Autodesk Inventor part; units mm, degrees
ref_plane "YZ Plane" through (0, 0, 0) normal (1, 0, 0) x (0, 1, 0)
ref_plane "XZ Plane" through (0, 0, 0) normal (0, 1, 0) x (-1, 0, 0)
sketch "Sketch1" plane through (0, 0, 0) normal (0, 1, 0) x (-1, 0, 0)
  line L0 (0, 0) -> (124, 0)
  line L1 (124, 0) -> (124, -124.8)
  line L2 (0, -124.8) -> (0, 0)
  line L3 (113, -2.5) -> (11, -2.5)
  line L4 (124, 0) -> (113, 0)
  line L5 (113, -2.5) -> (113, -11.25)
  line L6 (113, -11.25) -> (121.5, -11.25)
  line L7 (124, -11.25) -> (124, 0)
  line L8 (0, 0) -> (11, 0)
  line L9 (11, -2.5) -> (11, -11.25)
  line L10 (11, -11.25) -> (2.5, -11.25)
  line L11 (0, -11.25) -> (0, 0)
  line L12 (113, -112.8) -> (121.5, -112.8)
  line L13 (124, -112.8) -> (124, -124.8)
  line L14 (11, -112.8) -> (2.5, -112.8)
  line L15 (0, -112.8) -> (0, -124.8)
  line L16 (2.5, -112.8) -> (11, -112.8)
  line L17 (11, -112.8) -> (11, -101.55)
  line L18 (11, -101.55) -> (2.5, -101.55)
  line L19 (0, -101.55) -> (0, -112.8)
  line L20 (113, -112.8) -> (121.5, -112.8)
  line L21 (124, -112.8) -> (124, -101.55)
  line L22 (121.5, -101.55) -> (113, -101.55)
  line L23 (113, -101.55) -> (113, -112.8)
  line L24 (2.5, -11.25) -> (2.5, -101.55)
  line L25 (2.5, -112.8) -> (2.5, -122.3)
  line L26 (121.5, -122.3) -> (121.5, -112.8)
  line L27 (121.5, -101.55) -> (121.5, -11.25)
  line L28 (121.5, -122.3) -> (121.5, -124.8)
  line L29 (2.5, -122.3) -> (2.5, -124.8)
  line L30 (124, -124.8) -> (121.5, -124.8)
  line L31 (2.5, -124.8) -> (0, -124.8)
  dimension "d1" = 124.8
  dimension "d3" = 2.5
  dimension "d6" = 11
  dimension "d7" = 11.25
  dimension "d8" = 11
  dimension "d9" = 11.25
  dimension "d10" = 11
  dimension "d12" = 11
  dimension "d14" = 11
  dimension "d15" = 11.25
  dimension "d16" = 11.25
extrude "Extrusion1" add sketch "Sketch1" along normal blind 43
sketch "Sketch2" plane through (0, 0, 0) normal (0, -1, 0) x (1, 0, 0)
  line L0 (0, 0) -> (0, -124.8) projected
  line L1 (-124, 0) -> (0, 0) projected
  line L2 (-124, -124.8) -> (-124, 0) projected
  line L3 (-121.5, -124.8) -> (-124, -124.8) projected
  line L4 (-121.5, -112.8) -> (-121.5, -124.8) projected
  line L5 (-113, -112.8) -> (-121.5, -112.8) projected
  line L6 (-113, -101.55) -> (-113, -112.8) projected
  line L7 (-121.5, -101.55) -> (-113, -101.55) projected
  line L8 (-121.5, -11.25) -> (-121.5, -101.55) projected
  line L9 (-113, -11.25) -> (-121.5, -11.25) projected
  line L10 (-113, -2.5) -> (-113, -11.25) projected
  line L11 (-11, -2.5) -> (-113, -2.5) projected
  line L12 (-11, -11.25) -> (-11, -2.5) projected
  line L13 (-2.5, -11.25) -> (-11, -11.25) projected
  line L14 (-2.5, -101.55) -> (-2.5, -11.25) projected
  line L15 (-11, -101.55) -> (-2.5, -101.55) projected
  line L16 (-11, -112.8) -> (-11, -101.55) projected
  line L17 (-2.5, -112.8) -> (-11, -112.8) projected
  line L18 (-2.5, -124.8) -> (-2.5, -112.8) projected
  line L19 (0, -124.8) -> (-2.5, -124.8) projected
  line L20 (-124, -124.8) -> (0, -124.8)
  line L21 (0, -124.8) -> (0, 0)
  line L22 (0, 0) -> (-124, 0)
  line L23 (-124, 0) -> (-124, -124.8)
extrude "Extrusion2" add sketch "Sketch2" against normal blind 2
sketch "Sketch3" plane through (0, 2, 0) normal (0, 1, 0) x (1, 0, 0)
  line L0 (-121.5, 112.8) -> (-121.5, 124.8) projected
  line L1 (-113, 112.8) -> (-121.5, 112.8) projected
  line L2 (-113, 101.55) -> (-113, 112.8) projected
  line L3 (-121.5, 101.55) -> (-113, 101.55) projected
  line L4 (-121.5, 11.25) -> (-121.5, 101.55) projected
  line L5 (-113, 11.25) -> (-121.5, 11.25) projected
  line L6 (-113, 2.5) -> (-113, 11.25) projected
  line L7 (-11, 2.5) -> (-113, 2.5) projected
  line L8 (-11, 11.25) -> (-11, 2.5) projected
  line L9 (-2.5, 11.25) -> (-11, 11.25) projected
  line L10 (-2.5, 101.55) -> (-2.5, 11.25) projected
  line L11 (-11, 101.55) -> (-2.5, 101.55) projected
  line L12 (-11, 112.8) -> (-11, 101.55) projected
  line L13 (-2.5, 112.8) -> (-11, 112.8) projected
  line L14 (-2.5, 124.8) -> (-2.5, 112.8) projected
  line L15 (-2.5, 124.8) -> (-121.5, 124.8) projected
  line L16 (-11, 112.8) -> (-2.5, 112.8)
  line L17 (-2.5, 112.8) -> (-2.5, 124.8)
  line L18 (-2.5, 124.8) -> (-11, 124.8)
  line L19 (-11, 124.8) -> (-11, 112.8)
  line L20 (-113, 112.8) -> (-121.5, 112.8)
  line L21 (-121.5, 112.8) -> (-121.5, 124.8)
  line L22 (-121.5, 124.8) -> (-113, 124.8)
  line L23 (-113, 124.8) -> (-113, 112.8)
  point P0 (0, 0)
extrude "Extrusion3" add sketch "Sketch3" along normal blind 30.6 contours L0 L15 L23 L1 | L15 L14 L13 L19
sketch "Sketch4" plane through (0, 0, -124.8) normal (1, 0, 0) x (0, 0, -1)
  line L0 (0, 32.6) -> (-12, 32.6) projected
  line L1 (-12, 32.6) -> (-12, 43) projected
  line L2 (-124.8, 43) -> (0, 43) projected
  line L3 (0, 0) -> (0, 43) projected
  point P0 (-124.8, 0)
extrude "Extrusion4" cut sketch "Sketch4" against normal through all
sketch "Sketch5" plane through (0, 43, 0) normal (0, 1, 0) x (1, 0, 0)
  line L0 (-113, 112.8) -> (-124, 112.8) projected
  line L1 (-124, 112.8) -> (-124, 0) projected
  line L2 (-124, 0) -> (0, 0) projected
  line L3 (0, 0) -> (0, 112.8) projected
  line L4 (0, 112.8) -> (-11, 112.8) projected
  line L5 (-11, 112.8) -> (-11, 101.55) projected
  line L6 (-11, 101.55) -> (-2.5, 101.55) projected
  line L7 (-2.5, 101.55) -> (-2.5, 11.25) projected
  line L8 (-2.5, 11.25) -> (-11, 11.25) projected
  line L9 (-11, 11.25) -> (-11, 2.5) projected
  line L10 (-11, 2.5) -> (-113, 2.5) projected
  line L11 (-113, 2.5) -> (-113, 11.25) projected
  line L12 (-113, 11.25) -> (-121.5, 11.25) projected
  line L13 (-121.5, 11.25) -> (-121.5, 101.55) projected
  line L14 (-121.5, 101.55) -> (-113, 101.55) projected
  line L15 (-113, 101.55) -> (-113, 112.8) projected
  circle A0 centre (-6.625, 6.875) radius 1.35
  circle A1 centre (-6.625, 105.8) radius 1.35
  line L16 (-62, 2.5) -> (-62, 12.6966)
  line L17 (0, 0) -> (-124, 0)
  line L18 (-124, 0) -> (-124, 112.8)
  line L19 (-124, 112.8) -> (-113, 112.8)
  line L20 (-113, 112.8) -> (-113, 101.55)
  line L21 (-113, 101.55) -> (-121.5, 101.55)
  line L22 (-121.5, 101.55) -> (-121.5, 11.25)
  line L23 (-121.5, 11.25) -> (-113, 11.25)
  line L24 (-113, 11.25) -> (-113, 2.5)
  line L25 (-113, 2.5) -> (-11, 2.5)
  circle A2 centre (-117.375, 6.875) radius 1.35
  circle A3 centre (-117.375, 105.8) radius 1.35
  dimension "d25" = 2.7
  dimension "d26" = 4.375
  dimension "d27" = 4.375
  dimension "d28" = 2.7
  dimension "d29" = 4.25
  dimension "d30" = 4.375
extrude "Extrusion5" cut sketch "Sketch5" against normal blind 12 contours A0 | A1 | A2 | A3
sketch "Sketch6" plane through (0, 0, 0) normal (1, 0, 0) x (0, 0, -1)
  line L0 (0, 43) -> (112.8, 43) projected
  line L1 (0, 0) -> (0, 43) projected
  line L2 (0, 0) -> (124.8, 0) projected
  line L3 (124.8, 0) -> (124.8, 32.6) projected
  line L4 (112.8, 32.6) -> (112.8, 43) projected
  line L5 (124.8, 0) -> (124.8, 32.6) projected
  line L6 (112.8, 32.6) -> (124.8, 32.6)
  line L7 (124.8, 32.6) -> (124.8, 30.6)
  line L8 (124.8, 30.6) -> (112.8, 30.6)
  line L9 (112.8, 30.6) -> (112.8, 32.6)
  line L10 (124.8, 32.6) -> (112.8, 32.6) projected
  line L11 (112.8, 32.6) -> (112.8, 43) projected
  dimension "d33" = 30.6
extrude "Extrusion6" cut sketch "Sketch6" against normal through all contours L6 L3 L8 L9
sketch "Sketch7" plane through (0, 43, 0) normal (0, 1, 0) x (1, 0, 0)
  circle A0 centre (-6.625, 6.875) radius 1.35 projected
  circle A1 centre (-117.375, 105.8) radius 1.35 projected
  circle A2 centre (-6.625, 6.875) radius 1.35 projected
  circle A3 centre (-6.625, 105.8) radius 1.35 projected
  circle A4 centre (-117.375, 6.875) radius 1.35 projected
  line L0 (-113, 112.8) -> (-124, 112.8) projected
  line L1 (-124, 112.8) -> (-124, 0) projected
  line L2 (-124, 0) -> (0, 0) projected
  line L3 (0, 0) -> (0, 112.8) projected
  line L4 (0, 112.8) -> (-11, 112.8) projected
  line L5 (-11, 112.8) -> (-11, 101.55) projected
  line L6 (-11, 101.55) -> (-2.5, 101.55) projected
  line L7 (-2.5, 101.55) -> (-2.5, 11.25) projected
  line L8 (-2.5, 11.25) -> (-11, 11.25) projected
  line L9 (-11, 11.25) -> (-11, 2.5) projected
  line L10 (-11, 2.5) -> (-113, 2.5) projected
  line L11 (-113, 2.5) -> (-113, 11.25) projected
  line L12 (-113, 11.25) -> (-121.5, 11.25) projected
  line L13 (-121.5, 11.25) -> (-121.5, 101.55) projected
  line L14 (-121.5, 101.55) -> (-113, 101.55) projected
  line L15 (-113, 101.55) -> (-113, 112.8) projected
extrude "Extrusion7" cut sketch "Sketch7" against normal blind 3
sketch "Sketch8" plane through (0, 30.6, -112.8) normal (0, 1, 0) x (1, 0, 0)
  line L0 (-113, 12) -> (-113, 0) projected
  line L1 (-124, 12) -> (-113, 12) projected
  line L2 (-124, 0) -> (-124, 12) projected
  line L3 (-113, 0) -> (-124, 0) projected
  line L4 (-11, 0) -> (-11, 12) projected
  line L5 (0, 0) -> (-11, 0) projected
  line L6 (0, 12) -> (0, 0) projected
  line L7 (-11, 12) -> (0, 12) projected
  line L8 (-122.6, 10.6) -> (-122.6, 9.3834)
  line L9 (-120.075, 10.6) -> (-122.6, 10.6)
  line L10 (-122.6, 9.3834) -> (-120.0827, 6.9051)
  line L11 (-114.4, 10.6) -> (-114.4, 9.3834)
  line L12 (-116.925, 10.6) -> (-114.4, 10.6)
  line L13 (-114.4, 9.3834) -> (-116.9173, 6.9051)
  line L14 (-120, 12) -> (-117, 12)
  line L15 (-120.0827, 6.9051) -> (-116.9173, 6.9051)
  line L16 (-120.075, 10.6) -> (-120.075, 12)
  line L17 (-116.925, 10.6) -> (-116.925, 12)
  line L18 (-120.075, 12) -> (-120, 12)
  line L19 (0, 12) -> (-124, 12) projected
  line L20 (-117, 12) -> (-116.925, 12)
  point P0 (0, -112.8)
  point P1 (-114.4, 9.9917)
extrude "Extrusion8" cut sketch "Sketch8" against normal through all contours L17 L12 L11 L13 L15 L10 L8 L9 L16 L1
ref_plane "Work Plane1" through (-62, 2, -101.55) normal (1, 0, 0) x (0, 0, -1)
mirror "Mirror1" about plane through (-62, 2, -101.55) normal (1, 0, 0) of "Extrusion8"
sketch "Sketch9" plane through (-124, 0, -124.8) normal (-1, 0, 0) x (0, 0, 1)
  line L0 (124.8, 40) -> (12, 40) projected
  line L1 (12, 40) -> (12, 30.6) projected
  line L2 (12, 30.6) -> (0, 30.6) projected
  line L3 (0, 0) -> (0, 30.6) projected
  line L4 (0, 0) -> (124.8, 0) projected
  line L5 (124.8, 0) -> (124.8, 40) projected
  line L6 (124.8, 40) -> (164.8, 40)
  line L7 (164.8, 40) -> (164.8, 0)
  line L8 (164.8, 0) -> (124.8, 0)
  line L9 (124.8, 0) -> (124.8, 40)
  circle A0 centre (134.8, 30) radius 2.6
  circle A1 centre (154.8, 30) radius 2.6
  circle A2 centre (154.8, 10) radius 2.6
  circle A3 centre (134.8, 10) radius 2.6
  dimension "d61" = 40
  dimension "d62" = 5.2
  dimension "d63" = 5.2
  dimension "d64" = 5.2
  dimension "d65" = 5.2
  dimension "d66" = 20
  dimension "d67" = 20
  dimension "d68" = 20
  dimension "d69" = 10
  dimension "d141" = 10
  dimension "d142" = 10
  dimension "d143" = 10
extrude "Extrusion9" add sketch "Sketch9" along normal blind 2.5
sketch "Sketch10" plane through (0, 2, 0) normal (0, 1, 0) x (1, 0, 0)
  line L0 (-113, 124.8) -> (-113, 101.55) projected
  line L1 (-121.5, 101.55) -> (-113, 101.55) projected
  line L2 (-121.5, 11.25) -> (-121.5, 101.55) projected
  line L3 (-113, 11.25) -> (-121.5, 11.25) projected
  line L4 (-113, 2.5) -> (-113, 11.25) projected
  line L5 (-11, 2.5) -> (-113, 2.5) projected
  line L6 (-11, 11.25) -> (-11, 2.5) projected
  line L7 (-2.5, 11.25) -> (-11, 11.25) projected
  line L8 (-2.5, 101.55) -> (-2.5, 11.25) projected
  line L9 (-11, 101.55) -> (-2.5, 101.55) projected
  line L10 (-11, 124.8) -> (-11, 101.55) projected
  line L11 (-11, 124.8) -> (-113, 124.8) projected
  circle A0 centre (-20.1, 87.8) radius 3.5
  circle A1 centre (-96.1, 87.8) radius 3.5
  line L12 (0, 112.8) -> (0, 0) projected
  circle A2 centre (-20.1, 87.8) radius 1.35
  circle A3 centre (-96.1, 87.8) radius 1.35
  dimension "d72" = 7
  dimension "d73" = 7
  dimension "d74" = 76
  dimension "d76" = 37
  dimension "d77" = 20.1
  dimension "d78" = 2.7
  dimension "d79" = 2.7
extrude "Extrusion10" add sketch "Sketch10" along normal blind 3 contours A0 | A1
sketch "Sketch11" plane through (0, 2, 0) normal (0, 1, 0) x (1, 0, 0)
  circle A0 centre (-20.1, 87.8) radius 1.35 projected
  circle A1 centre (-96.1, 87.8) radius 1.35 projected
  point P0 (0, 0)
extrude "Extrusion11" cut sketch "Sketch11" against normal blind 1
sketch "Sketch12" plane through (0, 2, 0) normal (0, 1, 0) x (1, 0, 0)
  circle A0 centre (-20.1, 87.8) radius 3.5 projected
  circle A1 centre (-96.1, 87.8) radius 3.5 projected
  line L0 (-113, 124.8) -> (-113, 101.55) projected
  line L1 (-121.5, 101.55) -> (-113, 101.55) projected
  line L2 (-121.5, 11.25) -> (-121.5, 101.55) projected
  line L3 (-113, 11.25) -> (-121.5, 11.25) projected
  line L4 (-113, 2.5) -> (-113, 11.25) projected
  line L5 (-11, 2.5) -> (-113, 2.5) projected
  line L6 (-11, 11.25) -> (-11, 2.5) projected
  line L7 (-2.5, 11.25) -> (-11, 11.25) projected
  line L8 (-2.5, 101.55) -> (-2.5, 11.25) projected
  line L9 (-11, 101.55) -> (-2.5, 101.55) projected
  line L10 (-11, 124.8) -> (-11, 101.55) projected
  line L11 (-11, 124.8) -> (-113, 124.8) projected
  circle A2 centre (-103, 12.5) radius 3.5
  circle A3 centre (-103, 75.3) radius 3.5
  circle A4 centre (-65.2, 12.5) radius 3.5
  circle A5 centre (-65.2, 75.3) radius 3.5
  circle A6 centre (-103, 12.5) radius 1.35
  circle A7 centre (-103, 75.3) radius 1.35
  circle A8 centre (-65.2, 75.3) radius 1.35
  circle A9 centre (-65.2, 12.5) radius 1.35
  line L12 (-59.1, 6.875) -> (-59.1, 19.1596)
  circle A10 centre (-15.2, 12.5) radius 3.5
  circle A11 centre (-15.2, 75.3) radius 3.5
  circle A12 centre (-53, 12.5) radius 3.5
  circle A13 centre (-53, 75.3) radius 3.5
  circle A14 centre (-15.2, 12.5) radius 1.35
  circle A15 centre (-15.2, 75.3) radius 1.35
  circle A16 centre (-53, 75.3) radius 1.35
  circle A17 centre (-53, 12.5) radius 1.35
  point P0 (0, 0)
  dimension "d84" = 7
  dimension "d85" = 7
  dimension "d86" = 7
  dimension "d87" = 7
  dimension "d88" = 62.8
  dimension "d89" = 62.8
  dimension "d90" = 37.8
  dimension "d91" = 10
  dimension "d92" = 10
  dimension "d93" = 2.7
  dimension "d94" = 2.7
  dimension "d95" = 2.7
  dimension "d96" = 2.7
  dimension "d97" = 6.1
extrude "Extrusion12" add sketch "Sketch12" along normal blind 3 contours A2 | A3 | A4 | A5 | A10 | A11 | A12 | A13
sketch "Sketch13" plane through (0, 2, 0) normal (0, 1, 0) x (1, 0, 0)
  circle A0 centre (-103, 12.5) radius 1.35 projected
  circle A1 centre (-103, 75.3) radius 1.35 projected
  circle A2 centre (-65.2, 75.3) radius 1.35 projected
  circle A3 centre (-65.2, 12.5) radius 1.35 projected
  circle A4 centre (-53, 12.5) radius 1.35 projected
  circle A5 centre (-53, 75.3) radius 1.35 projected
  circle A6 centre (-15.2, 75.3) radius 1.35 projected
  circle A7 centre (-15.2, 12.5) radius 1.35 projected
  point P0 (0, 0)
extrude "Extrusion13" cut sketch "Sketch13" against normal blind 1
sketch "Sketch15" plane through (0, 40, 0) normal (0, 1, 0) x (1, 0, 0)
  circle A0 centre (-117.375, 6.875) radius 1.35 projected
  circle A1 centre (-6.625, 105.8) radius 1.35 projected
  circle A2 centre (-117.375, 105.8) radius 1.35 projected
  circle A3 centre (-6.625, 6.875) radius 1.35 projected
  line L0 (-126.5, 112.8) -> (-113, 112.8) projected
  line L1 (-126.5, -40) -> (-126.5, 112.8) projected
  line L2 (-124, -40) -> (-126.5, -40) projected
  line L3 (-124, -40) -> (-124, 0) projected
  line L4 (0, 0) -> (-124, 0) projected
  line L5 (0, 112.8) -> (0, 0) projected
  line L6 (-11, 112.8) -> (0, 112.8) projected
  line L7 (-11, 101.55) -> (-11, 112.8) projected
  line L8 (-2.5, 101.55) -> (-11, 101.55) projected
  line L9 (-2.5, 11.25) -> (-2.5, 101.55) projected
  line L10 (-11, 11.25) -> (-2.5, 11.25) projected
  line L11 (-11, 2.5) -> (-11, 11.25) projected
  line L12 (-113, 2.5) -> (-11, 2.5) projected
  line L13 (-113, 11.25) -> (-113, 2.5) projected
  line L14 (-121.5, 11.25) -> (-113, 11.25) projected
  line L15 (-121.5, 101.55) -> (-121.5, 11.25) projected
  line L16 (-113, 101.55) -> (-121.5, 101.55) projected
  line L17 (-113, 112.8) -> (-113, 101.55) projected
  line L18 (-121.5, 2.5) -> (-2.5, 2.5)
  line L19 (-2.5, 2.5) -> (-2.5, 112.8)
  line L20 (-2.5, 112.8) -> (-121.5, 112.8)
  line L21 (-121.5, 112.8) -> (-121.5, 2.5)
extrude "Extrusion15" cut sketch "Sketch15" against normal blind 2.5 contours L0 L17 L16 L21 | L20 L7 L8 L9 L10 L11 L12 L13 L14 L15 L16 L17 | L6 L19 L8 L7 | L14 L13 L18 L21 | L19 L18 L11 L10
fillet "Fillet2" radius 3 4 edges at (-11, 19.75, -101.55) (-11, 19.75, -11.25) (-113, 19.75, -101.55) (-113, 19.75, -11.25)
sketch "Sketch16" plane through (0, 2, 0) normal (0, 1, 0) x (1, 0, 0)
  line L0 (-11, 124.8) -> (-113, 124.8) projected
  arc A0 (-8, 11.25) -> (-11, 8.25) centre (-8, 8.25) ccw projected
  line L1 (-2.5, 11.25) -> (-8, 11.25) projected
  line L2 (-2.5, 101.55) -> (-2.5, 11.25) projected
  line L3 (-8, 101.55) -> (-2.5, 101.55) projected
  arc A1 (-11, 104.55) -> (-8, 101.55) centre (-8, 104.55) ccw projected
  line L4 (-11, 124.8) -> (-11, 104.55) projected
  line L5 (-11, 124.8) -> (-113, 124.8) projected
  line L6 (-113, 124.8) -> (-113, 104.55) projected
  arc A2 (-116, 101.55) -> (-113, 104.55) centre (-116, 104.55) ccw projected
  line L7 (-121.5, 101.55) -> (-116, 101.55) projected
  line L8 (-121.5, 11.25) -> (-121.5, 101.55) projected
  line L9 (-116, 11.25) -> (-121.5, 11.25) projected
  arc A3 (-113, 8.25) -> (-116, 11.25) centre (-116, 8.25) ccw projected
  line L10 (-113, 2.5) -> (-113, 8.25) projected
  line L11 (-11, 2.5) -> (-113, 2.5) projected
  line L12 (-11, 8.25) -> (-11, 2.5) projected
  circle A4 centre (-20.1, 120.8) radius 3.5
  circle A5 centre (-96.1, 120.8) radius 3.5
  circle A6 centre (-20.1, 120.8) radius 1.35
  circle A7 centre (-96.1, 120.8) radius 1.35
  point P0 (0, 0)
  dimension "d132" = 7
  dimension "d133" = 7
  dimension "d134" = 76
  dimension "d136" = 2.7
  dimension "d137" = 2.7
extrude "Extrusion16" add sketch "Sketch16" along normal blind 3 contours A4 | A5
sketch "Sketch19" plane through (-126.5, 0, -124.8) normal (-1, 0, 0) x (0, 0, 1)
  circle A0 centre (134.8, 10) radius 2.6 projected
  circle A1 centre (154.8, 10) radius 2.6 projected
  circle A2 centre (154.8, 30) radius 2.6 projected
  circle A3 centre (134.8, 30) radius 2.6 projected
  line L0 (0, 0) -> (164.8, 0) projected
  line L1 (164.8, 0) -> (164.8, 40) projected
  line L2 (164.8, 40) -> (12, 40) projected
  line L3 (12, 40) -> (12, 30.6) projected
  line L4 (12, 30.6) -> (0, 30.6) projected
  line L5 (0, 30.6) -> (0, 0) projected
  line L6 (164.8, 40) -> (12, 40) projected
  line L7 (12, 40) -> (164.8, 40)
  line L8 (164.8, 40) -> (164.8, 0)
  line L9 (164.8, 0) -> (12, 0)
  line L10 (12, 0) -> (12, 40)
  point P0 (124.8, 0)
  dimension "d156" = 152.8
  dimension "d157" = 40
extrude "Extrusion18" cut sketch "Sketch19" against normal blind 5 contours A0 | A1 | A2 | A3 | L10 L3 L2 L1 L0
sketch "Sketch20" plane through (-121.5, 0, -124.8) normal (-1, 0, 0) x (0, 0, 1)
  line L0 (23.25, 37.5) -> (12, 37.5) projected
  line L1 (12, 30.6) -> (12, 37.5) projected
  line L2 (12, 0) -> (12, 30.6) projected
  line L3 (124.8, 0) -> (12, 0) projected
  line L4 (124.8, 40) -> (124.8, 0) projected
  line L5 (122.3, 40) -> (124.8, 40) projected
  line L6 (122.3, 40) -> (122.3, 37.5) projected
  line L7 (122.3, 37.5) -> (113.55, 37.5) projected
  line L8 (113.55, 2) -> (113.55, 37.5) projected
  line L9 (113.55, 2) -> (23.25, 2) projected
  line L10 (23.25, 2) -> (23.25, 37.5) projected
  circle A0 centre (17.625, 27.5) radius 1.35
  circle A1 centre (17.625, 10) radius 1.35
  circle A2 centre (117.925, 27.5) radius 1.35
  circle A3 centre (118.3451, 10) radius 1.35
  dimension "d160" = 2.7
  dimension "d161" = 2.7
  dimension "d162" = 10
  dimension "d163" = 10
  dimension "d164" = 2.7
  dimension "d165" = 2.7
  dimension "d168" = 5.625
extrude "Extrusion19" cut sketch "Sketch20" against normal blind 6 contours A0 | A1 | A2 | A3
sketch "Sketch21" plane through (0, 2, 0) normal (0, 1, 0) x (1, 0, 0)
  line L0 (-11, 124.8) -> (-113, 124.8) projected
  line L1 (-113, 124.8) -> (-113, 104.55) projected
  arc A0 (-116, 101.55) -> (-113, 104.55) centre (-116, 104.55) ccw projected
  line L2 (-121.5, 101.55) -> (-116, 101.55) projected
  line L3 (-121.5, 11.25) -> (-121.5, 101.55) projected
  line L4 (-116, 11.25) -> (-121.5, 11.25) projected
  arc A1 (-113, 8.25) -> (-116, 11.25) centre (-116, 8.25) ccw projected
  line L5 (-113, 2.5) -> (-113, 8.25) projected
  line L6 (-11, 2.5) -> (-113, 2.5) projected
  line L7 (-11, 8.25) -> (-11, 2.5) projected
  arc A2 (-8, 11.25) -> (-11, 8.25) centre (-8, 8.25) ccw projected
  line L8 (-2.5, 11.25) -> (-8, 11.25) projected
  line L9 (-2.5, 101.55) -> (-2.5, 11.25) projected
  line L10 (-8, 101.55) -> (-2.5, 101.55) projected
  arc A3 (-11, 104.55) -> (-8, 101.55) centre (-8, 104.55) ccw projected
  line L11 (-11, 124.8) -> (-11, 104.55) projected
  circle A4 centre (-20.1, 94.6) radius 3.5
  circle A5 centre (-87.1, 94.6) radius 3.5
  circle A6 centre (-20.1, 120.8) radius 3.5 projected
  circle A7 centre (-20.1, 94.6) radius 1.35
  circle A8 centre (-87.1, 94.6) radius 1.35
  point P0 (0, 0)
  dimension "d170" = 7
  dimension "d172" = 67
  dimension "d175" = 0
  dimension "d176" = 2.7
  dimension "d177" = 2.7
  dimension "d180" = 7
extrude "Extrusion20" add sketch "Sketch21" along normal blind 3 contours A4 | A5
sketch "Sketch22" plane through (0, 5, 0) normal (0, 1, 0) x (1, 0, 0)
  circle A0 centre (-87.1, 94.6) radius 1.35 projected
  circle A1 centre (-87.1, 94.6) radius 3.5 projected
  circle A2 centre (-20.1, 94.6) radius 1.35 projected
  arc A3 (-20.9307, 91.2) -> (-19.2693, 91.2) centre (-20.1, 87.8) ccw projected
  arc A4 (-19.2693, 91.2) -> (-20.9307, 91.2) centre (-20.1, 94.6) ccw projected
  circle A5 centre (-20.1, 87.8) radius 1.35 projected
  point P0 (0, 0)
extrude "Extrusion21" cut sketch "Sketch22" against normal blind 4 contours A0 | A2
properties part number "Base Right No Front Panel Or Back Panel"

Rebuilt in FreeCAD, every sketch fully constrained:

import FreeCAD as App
import Part
import Sketcher

V = App.Vector
Q = App.Units.Quantity


def edges_at(feature, points):
    """Names of the edges that pass closest to the given points."""
    edges = feature.Shape.Edges
    near = lambda p: min(range(len(edges)), key=lambda i: edges[i].distToShape(Part.Vertex(*p))[0])
    return sorted({f"Edge{near(p) + 1}" for p in points})


def add_polygon(sketch, points):
    """Adds a closed chain of lines whose ends are joined by coincident constraints."""
    first, n = sketch.GeometryCount, len(points)
    for a, b in zip(points, points[1:] + points[:1]):
        sketch.addGeometry(Part.LineSegment(App.Vector(*a, 0), App.Vector(*b, 0)), False)
    for i in range(n):
        sketch.addConstraint(Sketcher.Constraint("Coincident", first + i, 2, first + (i + 1) % n, 1))

doc = App.newDocument("Part")
body = doc.addObject("PartDesign::Body", "Body")

# Sketch on XZ plane
sketch1 = doc.addObject("Sketcher::SketchObject", "Sketch")
body.addObject(sketch1)
sketch1.AttachmentSupport = (doc.XZ_Plane, [""])
sketch1.MapMode = "FlatFace"
add_polygon(sketch1, [(-124, 0), (0, 0), (0, -124.8), (-2.5, -124.8), (-2.5, -112.8), (-11, -112.8), (-11, -101.5), (-2.5, -101.5), (-2.5, -11.2), (-11, -11.2), (-11, -2.5), (-113, -2.5), (-113, -11.2), (-121.5, -11.2), (-121.5, -101.5), (-113, -101.5), (-113, -112.8), (-121.5, -112.8), (-121.5, -124.8), (-124, -124.8)])  # lines 0-19
sketch1.addConstraint([
    Sketcher.Constraint("Horizontal", 0),
    Sketcher.Constraint("Vertical", 1),
    Sketcher.Constraint("Horizontal", 2),
    Sketcher.Constraint("Vertical", 3),
    Sketcher.Constraint("Horizontal", 4),
    Sketcher.Constraint("Vertical", 5),
    Sketcher.Constraint("Horizontal", 6),
    Sketcher.Constraint("Vertical", 7),
    Sketcher.Constraint("Horizontal", 8),
    Sketcher.Constraint("Vertical", 9),
    Sketcher.Constraint("Horizontal", 10),
    Sketcher.Constraint("Vertical", 11),
    Sketcher.Constraint("Horizontal", 12),
    Sketcher.Constraint("Vertical", 13),
    Sketcher.Constraint("Horizontal", 14),
    Sketcher.Constraint("Vertical", 15),
    Sketcher.Constraint("Horizontal", 16),
    Sketcher.Constraint("Vertical", 17),
    Sketcher.Constraint("Horizontal", 18),
    Sketcher.Constraint("Vertical", 19),
    Sketcher.Constraint("Coincident", 0, 2, -1, 1),
    Sketcher.Constraint("Horizontal", 8, 2, 11, 2),
    Sketcher.Constraint("Horizontal", 6, 2, 13, 2),
    Sketcher.Constraint("Horizontal", 4, 2, 15, 2),
    Sketcher.Constraint("Horizontal", 2, 2, 17, 2),
    Sketcher.Constraint("Vertical", 3, 2, 6, 2),
    Sketcher.Constraint("Vertical", 5, 2, 8, 2),
    Sketcher.Constraint("Vertical", 11, 2, 14, 2),
    Sketcher.Constraint("Vertical", 13, 2, 16, 2),
    Sketcher.Constraint("Equal", 8, 12),
    Sketcher.Constraint("Equal", 2, 18),
    Sketcher.Constraint("DistanceX", 2, 2, 2, 1, Q("2.5 mm")),
    Sketcher.Constraint("DistanceY", 1, 2, 1, 1, Q("124.8 mm")),
    Sketcher.Constraint("DistanceX", 4, 2, -1, 1, Q("11 mm")),
    Sketcher.Constraint("DistanceY", 5, 1, 5, 2, Q("11.25 mm")),
    Sketcher.Constraint("DistanceY", 9, 2, -1, 1, Q("2.5 mm")),
    Sketcher.Constraint("DistanceX", 0, 1, 0, 2, Q("124 mm")),
    Sketcher.Constraint("DistanceY", 3, 1, 3, 2, Q("12 mm")),
    Sketcher.Constraint("DistanceY", 7, 2, -1, 1, Q("11.25 mm")),
])
pad1 = doc.addObject("PartDesign::Pad", "Pad")
body.addObject(pad1)
pad1.Profile = sketch1
pad1.Length = 43
pad1.Reversed = True

# Sketch on XZ plane
sketch2 = doc.addObject("Sketcher::SketchObject", "Sketch001")
body.addObject(sketch2)
sketch2.AttachmentSupport = (doc.XZ_Plane, [""])
sketch2.MapMode = "FlatFace"
add_polygon(sketch2, [(0, -125), (0, 0), (-124, 0), (-124, -125)])  # lines 0-3
sketch2.addConstraint([
    Sketcher.Constraint("Vertical", 0),
    Sketcher.Constraint("Horizontal", 1),
    Sketcher.Constraint("Vertical", 2),
    Sketcher.Constraint("Horizontal", 3),
    Sketcher.Constraint("Coincident", 0, 2, -1, 1),
    Sketcher.Constraint("DistanceX", 1, 2, 1, 1, Q("124 mm")),
    Sketcher.Constraint("DistanceY", 0, 1, 0, 2, Q("124.8 mm")),
])
pad2 = doc.addObject("PartDesign::Pad", "Pad001")
body.addObject(pad2)
pad2.Profile = sketch2
pad2.Length = 2
pad2.Reversed = True

# Sketch on XZ plane
sketch3 = doc.addObject("Sketcher::SketchObject", "Sketch002")
body.addObject(sketch3)
sketch3.AttachmentSupport = (doc.XZ_Plane, [""])
sketch3.MapMode = "FlatFace"
sketch3.AttachmentOffset = App.Placement(V(0, 0, -2), App.Rotation())
add_polygon(sketch3, [(-122, -125), (-122, -113), (-113, -113), (-113, -125)])  # lines 0-3
add_polygon(sketch3, [(-2, -125), (-11, -125), (-11, -113), (-2, -113)])  # lines 4-7
sketch3.addConstraint([
    Sketcher.Constraint("Vertical", 0),
    Sketcher.Constraint("Horizontal", 1),
    Sketcher.Constraint("Vertical", 2),
    Sketcher.Constraint("Horizontal", 3),
    Sketcher.Constraint("Horizontal", 4),
    Sketcher.Constraint("Vertical", 5),
    Sketcher.Constraint("Horizontal", 6),
    Sketcher.Constraint("Vertical", 7),
    Sketcher.Constraint("Horizontal", 3, 2, 4, 2),
    Sketcher.Constraint("Horizontal", 1, 2, 5, 2),
    Sketcher.Constraint("Equal", 3, 4),
    Sketcher.Constraint("DistanceY", 0, 1, 0, 2, Q("12 mm")),
    Sketcher.Constraint("DistanceX", 1, 1, 1, 2, Q("8.5 mm")),
    Sketcher.Constraint("DistanceX", 1, 2, -1, 1, Q("113 mm")),
    Sketcher.Constraint("DistanceX", 4, 2, -1, 1, Q("11 mm")),
    Sketcher.Constraint("DistanceY", 0, 2, -1, 1, Q("112.8 mm")),
])
pad3 = doc.addObject("PartDesign::Pad", "Pad002")
body.addObject(pad3)
pad3.Profile = sketch3
pad3.Length = 30.6
pad3.Reversed = True

# Sketch on YZ plane
sketch4 = doc.addObject("Sketcher::SketchObject", "Sketch003")
body.addObject(sketch4)
sketch4.AttachmentSupport = (doc.YZ_Plane, [""])
sketch4.MapMode = "FlatFace"
add_polygon(sketch4, [(33, -113), (33, -125), (43, -125), (43, -113)])  # lines 0-3
sketch4.addConstraint([
    Sketcher.Constraint("Vertical", 0),
    Sketcher.Constraint("Horizontal", 1),
    Sketcher.Constraint("Vertical", 2),
    Sketcher.Constraint("Horizontal", 3),
    Sketcher.Constraint("DistanceY", 0, 2, 0, 1, Q("12 mm")),
    Sketcher.Constraint("DistanceX", 1, 1, 1, 2, Q("10.4 mm")),
    Sketcher.Constraint("DistanceX", -1, 1, 1, 2, Q("43 mm")),
    Sketcher.Constraint("DistanceY", 0, 2, -1, 1, Q("124.8 mm")),
])
pocket1 = doc.addObject("PartDesign::Pocket", "Pocket")
body.addObject(pocket1)
pocket1.Profile = sketch4
pocket1.Type = "ThroughAll"

# Sketch on XZ plane
sketch5 = doc.addObject("Sketcher::SketchObject", "Sketch004")
body.addObject(sketch5)
sketch5.AttachmentSupport = (doc.XZ_Plane, [""])
sketch5.MapMode = "FlatFace"
sketch5.AttachmentOffset = App.Placement(V(0, 0, -43), App.Rotation())
sketch5.addGeometry([
    Part.Circle(V(-6.6, -6.9, 0), V(0, 0, 1), 1.4),
    Part.Circle(V(-6.6, -105.8, 0), V(0, 0, 1), 1.4),
    Part.Circle(V(-117.4, -6.9, 0), V(0, 0, 1), 1.4),
    Part.Circle(V(-117.4, -105.8, 0), V(0, 0, 1), 1.4),
], False)
sketch5.addConstraint([
    Sketcher.Constraint("Equal", 0, 1),
    Sketcher.Constraint("Equal", 1, 2),
    Sketcher.Constraint("Equal", 2, 3),
    Sketcher.Constraint("Horizontal", 0, 3, 2, 3),
    Sketcher.Constraint("Horizontal", 1, 3, 3, 3),
    Sketcher.Constraint("Vertical", 0, 3, 1, 3),
    Sketcher.Constraint("Vertical", 2, 3, 3, 3),
    Sketcher.Constraint("Diameter", 0, Q("2.7 mm")),
    Sketcher.Constraint("DistanceY", 1, 3, -1, 1, Q("105.8 mm")),
    Sketcher.Constraint("DistanceX", 2, 3, 0, 3, Q("110.75 mm")),
    Sketcher.Constraint("DistanceX", 0, 3, -1, 1, Q("6.625 mm")),
    Sketcher.Constraint("DistanceY", 0, 3, -1, 1, Q("6.875 mm")),
])
pocket2 = doc.addObject("PartDesign::Pocket", "Pocket001")
body.addObject(pocket2)
pocket2.Profile = sketch5
pocket2.Length = 12
pocket2.Reversed = True

# Sketch on YZ plane
sketch6 = doc.addObject("Sketcher::SketchObject", "Sketch005")
body.addObject(sketch6)
sketch6.AttachmentSupport = (doc.YZ_Plane, [""])
sketch6.MapMode = "FlatFace"
add_polygon(sketch6, [(32.6, -124.8), (32.6, -112.8), (30.6, -112.8), (30.6, -124.8)])  # lines 0-3
sketch6.addConstraint([
    Sketcher.Constraint("Vertical", 0),
    Sketcher.Constraint("Horizontal", 1),
    Sketcher.Constraint("Vertical", 2),
    Sketcher.Constraint("Horizontal", 3),
    Sketcher.Constraint("DistanceX", -1, 1, 1, 2, Q("30.6 mm")),
    Sketcher.Constraint("DistanceX", 1, 2, 1, 1, Q("2 mm")),
    Sketcher.Constraint("DistanceY", 0, 1, 0, 2, Q("12 mm")),
    Sketcher.Constraint("DistanceY", 0, 2, -1, 1, Q("112.8 mm")),
])
pocket3 = doc.addObject("PartDesign::Pocket", "Pocket002")
body.addObject(pocket3)
pocket3.Profile = sketch6
pocket3.Type = "ThroughAll"

# Sketch on XZ plane
sketch7 = doc.addObject("Sketcher::SketchObject", "Sketch006")
body.addObject(sketch7)
sketch7.AttachmentSupport = (doc.XZ_Plane, [""])
sketch7.MapMode = "FlatFace"
sketch7.AttachmentOffset = App.Placement(V(0, 0, -43), App.Rotation())
add_polygon(sketch7, [(-113, -101.5), (-113, -112.8), (-124, -112.8), (-124, 0), (0, 0), (0, -112.8), (-11, -112.8), (-11, -101.5), (-2.5, -101.5), (-2.5, -11.2), (-11, -11.2), (-11, -2.5), (-113, -2.5), (-113, -11.2), (-121.5, -11.2), (-121.5, -101.5)])  # lines 0-15
sketch7.addGeometry(Part.Circle(V(-117.4, -6.9, 0), V(0, 0, 1), 1.4), False)  # 16
sketch7.addGeometry(Part.Circle(V(-6.6, -6.9, 0), V(0, 0, 1), 1.4), False)  # 17
sketch7.addGeometry(Part.Circle(V(-117.4, -105.8, 0), V(0, 0, 1), 1.4), False)  # 18
sketch7.addGeometry(Part.Circle(V(-6.6, -105.8, 0), V(0, 0, 1), 1.4), False)  # 19
sketch7.addConstraint([
    Sketcher.Constraint("Vertical", 0),
    Sketcher.Constraint("Horizontal", 1),
    Sketcher.Constraint("Vertical", 2),
    Sketcher.Constraint("Horizontal", 3),
    Sketcher.Constraint("Vertical", 4),
    Sketcher.Constraint("Horizontal", 5),
    Sketcher.Constraint("Vertical", 6),
    Sketcher.Constraint("Horizontal", 7),
    Sketcher.Constraint("Vertical", 8),
    Sketcher.Constraint("Horizontal", 9),
    Sketcher.Constraint("Vertical", 10),
    Sketcher.Constraint("Horizontal", 11),
    Sketcher.Constraint("Vertical", 12),
    Sketcher.Constraint("Horizontal", 13),
    Sketcher.Constraint("Vertical", 14),
    Sketcher.Constraint("Horizontal", 15),
    Sketcher.Constraint("Coincident", 3, 2, -1, 1),
    Sketcher.Constraint("Equal", 16, 17),
    Sketcher.Constraint("Equal", 17, 18),
    Sketcher.Constraint("Equal", 18, 19),
    Sketcher.Constraint("Horizontal", 16, 3, 17, 3),
    Sketcher.Constraint("Horizontal", 18, 3, 19, 3),
    Sketcher.Constraint("Horizontal", 1, 2, 4, 2),
    Sketcher.Constraint("Horizontal", 9, 2, 12, 2),
    Sketcher.Constraint("Horizontal", 7, 2, 14, 2),
    Sketcher.Constraint("Vertical", 16, 3, 18, 3),
    Sketcher.Constraint("Vertical", 17, 3, 19, 3),
    Sketcher.Constraint("Vertical", 6, 2, 9, 2),
    Sketcher.Constraint("Vertical", 0, 2, 11, 2),
    Sketcher.Constraint("Equal", 1, 5),
    Sketcher.Constraint("Equal", 9, 13),
    Sketcher.Constraint("Diameter", 16, Q("2.7 mm")),
    Sketcher.Constraint("DistanceX", 1, 2, 1, 1, Q("11 mm")),
    Sketcher.Constraint("DistanceX", 3, 1, 3, 2, Q("124 mm")),
    Sketcher.Constraint("DistanceX", 7, 1, 7, 2, Q("8.5 mm")),
    Sketcher.Constraint("DistanceY", 2, 1, 2, 2, Q("112.8 mm")),
    Sketcher.Constraint("DistanceY", 8, 1, 8, 2, Q("90.3 mm")),
    Sketcher.Constraint("DistanceY", 0, 2, 18, 3, Q("7 mm")),
    Sketcher.Constraint("DistanceY", 0, 2, 0, 1, Q("11.25 mm")),
    Sketcher.Constraint("DistanceY", 10, 1, 10, 2, Q("8.75 mm")),
    Sketcher.Constraint("DistanceX", 16, 3, 17, 3, Q("110.75 mm")),
    Sketcher.Constraint("DistanceX", 16, 3, -1, 1, Q("117.375 mm")),
    Sketcher.Constraint("DistanceY", 16, 3, -1, 1, Q("6.875 mm")),
])
pocket4 = doc.addObject("PartDesign::Pocket", "Pocket003")
body.addObject(pocket4)
pocket4.Profile = sketch7
pocket4.Length = 3
pocket4.Reversed = True

# Sketch on XZ plane
sketch8 = doc.addObject("Sketcher::SketchObject", "Sketch007")
body.addObject(sketch8)
sketch8.AttachmentSupport = (doc.XZ_Plane, [""])
sketch8.MapMode = "FlatFace"
sketch8.AttachmentOffset = App.Placement(V(0, 0, -30.6), App.Rotation())
add_polygon(sketch8, [(-116.9, -123.4), (-116.9, -124.8), (-120.1, -124.8), (-120.1, -123.4), (-122.6, -123.4), (-122.6, -122.2), (-120.1, -119.7), (-116.9, -119.7), (-114.4, -122.2), (-114.4, -123.4)])  # lines 0-9
sketch8.addConstraint([
    Sketcher.Constraint("Vertical", 0),
    Sketcher.Constraint("Horizontal", 1),
    Sketcher.Constraint("Vertical", 2),
    Sketcher.Constraint("Horizontal", 3),
    Sketcher.Constraint("Vertical", 4),
    Sketcher.Constraint("Horizontal", 6),
    Sketcher.Constraint("Vertical", 8),
    Sketcher.Constraint("Horizontal", 9),
    Sketcher.Constraint("Horizontal", 4, 2, 7, 2),
    Sketcher.Constraint("Horizontal", 3, 2, 8, 2),
    Sketcher.Constraint("Equal", 3, 9),
    Sketcher.Constraint("Equal", 5, 7),
    Sketcher.Constraint("DistanceY", 0, 2, 0, 1, Q("1.4 mm")),
    Sketcher.Constraint("DistanceX", 1, 2, 1, 1, Q("3.15 mm")),
    Sketcher.Constraint("DistanceY", 0, 2, -1, 1, Q("124.8 mm")),
    Sketcher.Constraint("DistanceX", 3, 2, -1, 1, Q("122.6 mm")),
    Sketcher.Constraint("DistanceX", 7, 2, -1, 1, Q("114.4 mm")),
    Sketcher.Constraint("DistanceX", 6, 1, 6, 2, Q("3.1654 mm")),
    Sketcher.Constraint("DistanceY", 4, 1, 4, 2, Q("1.2166 mm")),
    Sketcher.Constraint("DistanceY", 5, 2, -1, 1, Q("119.705 mm")),
])
pocket5 = doc.addObject("PartDesign::Pocket", "Pocket004")
body.addObject(pocket5)
pocket5.Profile = sketch8
pocket5.Type = "ThroughAll"
pocket5.Reversed = True
doc.recompute()

datumplane = doc.addObject("PartDesign::Plane", "DatumPlane")
body.addObject(datumplane)
datumplane.AttachmentSupport = (doc.YZ_Plane, [""])
datumplane.MapMode = "FlatFace"
datumplane.AttachmentOffset = App.Placement(V(0, 0, -62), App.Rotation())
mirrored = doc.addObject("PartDesign::Mirrored", "Mirrored")
body.addObject(mirrored)
mirrored.Originals = [pocket5]
mirrored.MirrorPlane = (datumplane, [""])
body.Tip = mirrored

# Sketch on YZ plane
sketch9 = doc.addObject("Sketcher::SketchObject", "Sketch008")
body.addObject(sketch9)
sketch9.AttachmentSupport = (doc.YZ_Plane, [""])
sketch9.MapMode = "FlatFace"
sketch9.AttachmentOffset = App.Placement(V(0, 0, -124), App.Rotation())
add_polygon(sketch9, [(0, -124.8), (0, 40), (40, 40), (40, -112.8), (30.6, -112.8), (30.6, -124.8)])  # lines 0-5
sketch9.addGeometry(Part.Circle(V(30, 30, 0), V(0, 0, 1), 2.6), False)  # 6
sketch9.addGeometry(Part.Circle(V(10, 10, 0), V(0, 0, 1), 2.6), False)  # 7
sketch9.addGeometry(Part.Circle(V(10, 30, 0), V(0, 0, 1), 2.6), False)  # 8
sketch9.addGeometry(Part.Circle(V(30, 10, 0), V(0, 0, 1), 2.6), False)  # 9
sketch9.addConstraint([
    Sketcher.Constraint("Vertical", 0),
    Sketcher.Constraint("Horizontal", 1),
    Sketcher.Constraint("Vertical", 2),
    Sketcher.Constraint("Horizontal", 3),
    Sketcher.Constraint("Vertical", 4),
    Sketcher.Constraint("Horizontal", 5),
    Sketcher.Constraint("Equal", 6, 7),
    Sketcher.Constraint("Equal", 7, 8),
    Sketcher.Constraint("Equal", 8, 9),
    Sketcher.Constraint("PointOnObject", 0, 2, -2),
    Sketcher.Constraint("Horizontal", 6, 3, 8, 3),
    Sketcher.Constraint("Horizontal", 7, 3, 9, 3),
    Sketcher.Constraint("Vertical", 7, 3, 8, 3),
    Sketcher.Constraint("Vertical", 6, 3, 9, 3),
    Sketcher.Constraint("Diameter", 6, Q("5.2 mm")),
    Sketcher.Constraint("DistanceX", 1, 1, 1, 2, Q("40 mm")),
    Sketcher.Constraint("DistanceX", -1, 1, 7, 3, Q("10 mm")),
    Sketcher.Constraint("DistanceY", -1, 1, 7, 3, Q("10 mm")),
    Sketcher.Constraint("DistanceY", -1, 1, 0, 2, Q("40 mm")),
    Sketcher.Constraint("DistanceX", 7, 3, 6, 3, Q("20 mm")),
    Sketcher.Constraint("DistanceY", 7, 3, 6, 3, Q("20 mm")),
    Sketcher.Constraint("DistanceY", 4, 2, 4, 1, Q("12 mm")),
    Sketcher.Constraint("DistanceX", 3, 2, 3, 1, Q("9.4 mm")),
    Sketcher.Constraint("DistanceY", 0, 1, 0, 2, Q("164.8 mm")),
])
pad4 = doc.addObject("PartDesign::Pad", "Pad003")
body.addObject(pad4)
pad4.Profile = sketch9
pad4.Length = 2.5
pad4.Reversed = True

# Sketch on XZ plane
sketch10 = doc.addObject("Sketcher::SketchObject", "Sketch009")
body.addObject(sketch10)
sketch10.AttachmentSupport = (doc.XZ_Plane, [""])
sketch10.MapMode = "FlatFace"
sketch10.AttachmentOffset = App.Placement(V(0, 0, -2), App.Rotation())
sketch10.addGeometry([
    Part.Circle(V(-20.1, -87.8, 0), V(0, 0, 1), 3.5),
    Part.Circle(V(-20.1, -87.8, 0), V(0, 0, 1), 1.4),
    Part.Circle(V(-96.1, -87.8, 0), V(0, 0, 1), 3.5),
    Part.Circle(V(-96.1, -87.8, 0), V(0, 0, 1), 1.4),
], False)
sketch10.addConstraint([
    Sketcher.Constraint("Coincident", 1, 3, 0, 3),
    Sketcher.Constraint("Coincident", 3, 3, 2, 3),
    Sketcher.Constraint("Equal", 0, 2),
    Sketcher.Constraint("Equal", 1, 3),
    Sketcher.Constraint("Horizontal", 1, 3, 2, 3),
    Sketcher.Constraint("Diameter", 0, Q("7 mm")),
    Sketcher.Constraint("Diameter", 1, Q("2.7 mm")),
    Sketcher.Constraint("DistanceX", 2, 3, 0, 3, Q("76 mm")),
    Sketcher.Constraint("DistanceX", 0, 3, -1, 1, Q("20.1 mm")),
    Sketcher.Constraint("DistanceY", 0, 3, -1, 1, Q("87.8 mm")),
])
pad5 = doc.addObject("PartDesign::Pad", "Pad004")
body.addObject(pad5)
pad5.Profile = sketch10
pad5.Length = 3
pad5.Reversed = True

# Sketch on XZ plane
sketch11 = doc.addObject("Sketcher::SketchObject", "Sketch010")
body.addObject(sketch11)
sketch11.AttachmentSupport = (doc.XZ_Plane, [""])
sketch11.MapMode = "FlatFace"
sketch11.AttachmentOffset = App.Placement(V(0, 0, -2), App.Rotation())
sketch11.addGeometry([
    Part.Circle(V(-20.1, -87.8, 0), V(0, 0, 1), 1.4),
    Part.Circle(V(-96.1, -87.8, 0), V(0, 0, 1), 1.4),
], False)
sketch11.addConstraint([
    Sketcher.Constraint("Equal", 0, 1),
    Sketcher.Constraint("Horizontal", 0, 3, 1, 3),
    Sketcher.Constraint("Diameter", 0, Q("2.7 mm")),
    Sketcher.Constraint("DistanceX", 1, 3, 0, 3, Q("76 mm")),
    Sketcher.Constraint("DistanceX", 0, 3, -1, 1, Q("20.1 mm")),
    Sketcher.Constraint("DistanceY", 0, 3, -1, 1, Q("87.8 mm")),
])
pocket6 = doc.addObject("PartDesign::Pocket", "Pocket005")
body.addObject(pocket6)
pocket6.Profile = sketch11
pocket6.Length = 1
pocket6.Reversed = True

# Sketch on XZ plane
sketch12 = doc.addObject("Sketcher::SketchObject", "Sketch011")
body.addObject(sketch12)
sketch12.AttachmentSupport = (doc.XZ_Plane, [""])
sketch12.MapMode = "FlatFace"
sketch12.AttachmentOffset = App.Placement(V(0, 0, -2), App.Rotation())
sketch12.addGeometry([
    Part.Circle(V(-103, -12.5, 0), V(0, 0, 1), 3.5),  # 0
    Part.Circle(V(-103, -12.5, 0), V(0, 0, 1), 1.4),  # 1
    Part.Circle(V(-103, -75.3, 0), V(0, 0, 1), 3.5),  # 2
    Part.Circle(V(-103, -75.3, 0), V(0, 0, 1), 1.4),  # 3
    Part.Circle(V(-65.2, -12.5, 0), V(0, 0, 1), 3.5),  # 4
    Part.Circle(V(-65.2, -12.5, 0), V(0, 0, 1), 1.4),  # 5
    Part.Circle(V(-65.2, -75.3, 0), V(0, 0, 1), 3.5),  # 6
    Part.Circle(V(-65.2, -75.3, 0), V(0, 0, 1), 1.4),  # 7
    Part.Circle(V(-15.2, -12.5, 0), V(0, 0, 1), 3.5),  # 8
    Part.Circle(V(-15.2, -12.5, 0), V(0, 0, 1), 1.4),  # 9
    Part.Circle(V(-15.2, -75.3, 0), V(0, 0, 1), 3.5),  # 10
    Part.Circle(V(-15.2, -75.3, 0), V(0, 0, 1), 1.4),  # 11
    Part.Circle(V(-53, -12.5, 0), V(0, 0, 1), 3.5),  # 12
    Part.Circle(V(-53, -12.5, 0), V(0, 0, 1), 1.4),  # 13
    Part.Circle(V(-53, -75.3, 0), V(0, 0, 1), 3.5),  # 14
    Part.Circle(V(-53, -75.3, 0), V(0, 0, 1), 1.4),  # 15
], False)
sketch12.addConstraint([
    Sketcher.Constraint("Coincident", 1, 3, 0, 3),
    Sketcher.Constraint("Coincident", 3, 3, 2, 3),
    Sketcher.Constraint("Coincident", 5, 3, 4, 3),
    Sketcher.Constraint("Coincident", 7, 3, 6, 3),
    Sketcher.Constraint("Coincident", 9, 3, 8, 3),
    Sketcher.Constraint("Coincident", 11, 3, 10, 3),
    Sketcher.Constraint("Coincident", 13, 3, 12, 3),
    Sketcher.Constraint("Coincident", 15, 3, 14, 3),
    Sketcher.Constraint("Equal", 0, 2),
    Sketcher.Constraint("Equal", 1, 3),
    Sketcher.Constraint("Equal", 2, 4),
    Sketcher.Constraint("Equal", 3, 5),
    Sketcher.Constraint("Equal", 4, 6),
    Sketcher.Constraint("Equal", 5, 7),
    Sketcher.Constraint("Equal", 6, 8),
    Sketcher.Constraint("Equal", 7, 9),
    Sketcher.Constraint("Equal", 8, 10),
    Sketcher.Constraint("Equal", 9, 11),
    Sketcher.Constraint("Equal", 10, 12),
    Sketcher.Constraint("Equal", 11, 13),
    Sketcher.Constraint("Equal", 12, 14),
    Sketcher.Constraint("Equal", 13, 15),
    Sketcher.Constraint("Horizontal", 1, 3, 4, 3),
    Sketcher.Constraint("Horizontal", 3, 3, 6, 3),
    Sketcher.Constraint("Horizontal", 5, 3, 8, 3),
    Sketcher.Constraint("Horizontal", 7, 3, 10, 3),
    Sketcher.Constraint("Horizontal", 9, 3, 12, 3),
    Sketcher.Constraint("Horizontal", 11, 3, 14, 3),
    Sketcher.Constraint("Vertical", 1, 3, 2, 3),
    Sketcher.Constraint("Vertical", 5, 3, 6, 3),
    Sketcher.Constraint("Vertical", 9, 3, 10, 3),
    Sketcher.Constraint("Vertical", 13, 3, 14, 3),
    Sketcher.Constraint("Diameter", 0, Q("7 mm")),
    Sketcher.Constraint("Diameter", 1, Q("2.7 mm")),
    Sketcher.Constraint("DistanceY", 2, 3, 0, 3, Q("62.8 mm")),
    Sketcher.Constraint("DistanceX", 0, 3, 4, 3, Q("37.8 mm")),
    Sketcher.Constraint("DistanceX", 12, 3, 8, 3, Q("37.8 mm")),
    Sketcher.Constraint("DistanceX", 0, 3, -1, 1, Q("103 mm")),
    Sketcher.Constraint("DistanceX", 12, 3, -1, 1, Q("53 mm")),
    Sketcher.Constraint("DistanceY", 0, 3, -1, 1, Q("12.5 mm")),
])
pad6 = doc.addObject("PartDesign::Pad", "Pad005")
body.addObject(pad6)
pad6.Profile = sketch12
pad6.Length = 3
pad6.Reversed = True

# Sketch on XZ plane
sketch13 = doc.addObject("Sketcher::SketchObject", "Sketch012")
body.addObject(sketch13)
sketch13.AttachmentSupport = (doc.XZ_Plane, [""])
sketch13.MapMode = "FlatFace"
sketch13.AttachmentOffset = App.Placement(V(0, 0, -2), App.Rotation())
sketch13.addGeometry([
    Part.Circle(V(-103, -12.5, 0), V(0, 0, 1), 1.4),  # 0
    Part.Circle(V(-103, -75.3, 0), V(0, 0, 1), 1.4),  # 1
    Part.Circle(V(-65.2, -75.3, 0), V(0, 0, 1), 1.4),  # 2
    Part.Circle(V(-65.2, -12.5, 0), V(0, 0, 1), 1.4),  # 3
    Part.Circle(V(-53, -12.5, 0), V(0, 0, 1), 1.4),  # 4
    Part.Circle(V(-53, -75.3, 0), V(0, 0, 1), 1.4),  # 5
    Part.Circle(V(-15.2, -75.3, 0), V(0, 0, 1), 1.4),  # 6
    Part.Circle(V(-15.2, -12.5, 0), V(0, 0, 1), 1.4),  # 7
], False)
sketch13.addConstraint([
    Sketcher.Constraint("Equal", 0, 1),
    Sketcher.Constraint("Equal", 1, 2),
    Sketcher.Constraint("Equal", 2, 3),
    Sketcher.Constraint("Equal", 3, 4),
    Sketcher.Constraint("Equal", 4, 5),
    Sketcher.Constraint("Equal", 5, 6),
    Sketcher.Constraint("Equal", 6, 7),
    Sketcher.Constraint("Horizontal", 1, 3, 2, 3),
    Sketcher.Constraint("Horizontal", 0, 3, 3, 3),
    Sketcher.Constraint("Horizontal", 3, 3, 4, 3),
    Sketcher.Constraint("Horizontal", 2, 3, 5, 3),
    Sketcher.Constraint("Horizontal", 5, 3, 6, 3),
    Sketcher.Constraint("Horizontal", 4, 3, 7, 3),
    Sketcher.Constraint("Vertical", 0, 3, 1, 3),
    Sketcher.Constraint("Vertical", 2, 3, 3, 3),
    Sketcher.Constraint("Vertical", 4, 3, 5, 3),
    Sketcher.Constraint("Vertical", 6, 3, 7, 3),
    Sketcher.Constraint("Diameter", 0, Q("2.7 mm")),
    Sketcher.Constraint("DistanceX", 0, 3, -1, 1, Q("103 mm")),
    Sketcher.Constraint("DistanceX", 4, 3, -1, 1, Q("53 mm")),
    Sketcher.Constraint("DistanceX", 2, 3, 6, 3, Q("50 mm")),
    Sketcher.Constraint("DistanceY", 0, 3, -1, 1, Q("12.5 mm")),
    Sketcher.Constraint("DistanceY", 1, 3, -1, 1, Q("75.3 mm")),
    Sketcher.Constraint("DistanceX", 2, 3, -1, 1, Q("65.2 mm")),
])
pocket7 = doc.addObject("PartDesign::Pocket", "Pocket006")
body.addObject(pocket7)
pocket7.Profile = sketch13
pocket7.Length = 1
pocket7.Reversed = True

# Sketch on XZ plane
sketch14 = doc.addObject("Sketcher::SketchObject", "Sketch013")
body.addObject(sketch14)
sketch14.AttachmentSupport = (doc.XZ_Plane, [""])
sketch14.MapMode = "FlatFace"
sketch14.AttachmentOffset = App.Placement(V(0, 0, -40), App.Rotation())
add_polygon(sketch14, [(-121.5, -112.8), (-121.5, -2.5), (-2.5, -2.5), (-2.5, -112.8)])  # lines 0-3
sketch14.addGeometry(Part.Circle(V(-117.4, -105.8, 0), V(0, 0, 1), 1.4), False)  # 4
sketch14.addGeometry(Part.Circle(V(-6.6, -105.8, 0), V(0, 0, 1), 1.4), False)  # 5
sketch14.addGeometry(Part.Circle(V(-6.6, -6.9, 0), V(0, 0, 1), 1.4), False)  # 6
sketch14.addGeometry(Part.Circle(V(-117.4, -6.9, 0), V(0, 0, 1), 1.4), False)  # 7
sketch14.addConstraint([
    Sketcher.Constraint("Vertical", 0),
    Sketcher.Constraint("Horizontal", 1),
    Sketcher.Constraint("Vertical", 2),
    Sketcher.Constraint("Horizontal", 3),
    Sketcher.Constraint("Equal", 4, 5),
    Sketcher.Constraint("Equal", 5, 6),
    Sketcher.Constraint("Equal", 6, 7),
    Sketcher.Constraint("Horizontal", 4, 3, 5, 3),
    Sketcher.Constraint("Horizontal", 6, 3, 7, 3),
    Sketcher.Constraint("Vertical", 5, 3, 6, 3),
    Sketcher.Constraint("Vertical", 4, 3, 7, 3),
    Sketcher.Constraint("Diameter", 4, Q("2.7 mm")),
    Sketcher.Constraint("DistanceX", 1, 1, 1, 2, Q("119 mm")),
    Sketcher.Constraint("DistanceY", 0, 1, 0, 2, Q("110.3 mm")),
    Sketcher.Constraint("DistanceY", 2, 2, 5, 3, Q("7 mm")),
    Sketcher.Constraint("DistanceY", 4, 3, -1, 1, Q("105.8 mm")),
    Sketcher.Constraint("DistanceX", 0, 2, -1, 1, Q("121.5 mm")),
    Sketcher.Constraint("DistanceX", 4, 3, 5, 3, Q("110.75 mm")),
    Sketcher.Constraint("DistanceX", 4, 3, -1, 1, Q("117.375 mm")),
    Sketcher.Constraint("DistanceY", 6, 3, -1, 1, Q("6.875 mm")),
])
pocket8 = doc.addObject("PartDesign::Pocket", "Pocket007")
body.addObject(pocket8)
pocket8.Profile = sketch14
pocket8.Length = 2.5
pocket8.Reversed = True
doc.recompute()

fillet = doc.addObject("PartDesign::Fillet", "Fillet")
body.addObject(fillet)
fillet.Base = (pocket8, edges_at(pocket8, [
    (-11, 19.75, -101.55),
    (-11, 19.75, -11.25),
    (-113, 19.75, -101.55),
    (-113, 19.75, -11.25),
]))
fillet.Radius = 3

# Sketch on XZ plane
sketch15 = doc.addObject("Sketcher::SketchObject", "Sketch014")
body.addObject(sketch15)
sketch15.AttachmentSupport = (doc.XZ_Plane, [""])
sketch15.MapMode = "FlatFace"
sketch15.AttachmentOffset = App.Placement(V(0, 0, -2), App.Rotation())
sketch15.addGeometry([
    Part.Circle(V(-20.1, -120.8, 0), V(0, 0, 1), 3.5),
    Part.Circle(V(-20.1, -120.8, 0), V(0, 0, 1), 1.4),
    Part.Circle(V(-96.1, -120.8, 0), V(0, 0, 1), 3.5),
    Part.Circle(V(-96.1, -120.8, 0), V(0, 0, 1), 1.4),
], False)
sketch15.addConstraint([
    Sketcher.Constraint("Coincident", 1, 3, 0, 3),
    Sketcher.Constraint("Coincident", 3, 3, 2, 3),
    Sketcher.Constraint("Equal", 0, 2),
    Sketcher.Constraint("Equal", 1, 3),
    Sketcher.Constraint("Horizontal", 1, 3, 2, 3),
    Sketcher.Constraint("Diameter", 0, Q("7 mm")),
    Sketcher.Constraint("Diameter", 1, Q("2.7 mm")),
    Sketcher.Constraint("DistanceX", 2, 3, 0, 3, Q("76 mm")),
    Sketcher.Constraint("DistanceX", 0, 3, -1, 1, Q("20.1 mm")),
    Sketcher.Constraint("DistanceY", 0, 3, -1, 1, Q("120.8 mm")),
])
pad7 = doc.addObject("PartDesign::Pad", "Pad006")
body.addObject(pad7)
pad7.Profile = sketch15
pad7.Length = 3
pad7.Reversed = True

# Sketch on YZ plane
sketch16 = doc.addObject("Sketcher::SketchObject", "Sketch015")
body.addObject(sketch16)
sketch16.AttachmentSupport = (doc.YZ_Plane, [""])
sketch16.MapMode = "FlatFace"
sketch16.AttachmentOffset = App.Placement(V(0, 0, -126.5), App.Rotation())
add_polygon(sketch16, [(0, -113), (0, 40), (40, 40), (40, -113)])  # lines 0-3
sketch16.addConstraint([
    Sketcher.Constraint("Vertical", 0),
    Sketcher.Constraint("Horizontal", 1),
    Sketcher.Constraint("Vertical", 2),
    Sketcher.Constraint("Horizontal", 3),
    Sketcher.Constraint("PointOnObject", 0, 2, -2),
    Sketcher.Constraint("DistanceX", 1, 1, 1, 2, Q("40 mm")),
    Sketcher.Constraint("DistanceY", 0, 1, 0, 2, Q("152.8 mm")),
    Sketcher.Constraint("DistanceY", -1, 1, 0, 2, Q("40 mm")),
])
pocket9 = doc.addObject("PartDesign::Pocket", "Pocket008")
body.addObject(pocket9)
pocket9.Profile = sketch16
pocket9.Length = 5
pocket9.Reversed = True

# Sketch on YZ plane
sketch17 = doc.addObject("Sketcher::SketchObject", "Sketch016")
body.addObject(sketch17)
sketch17.AttachmentSupport = (doc.YZ_Plane, [""])
sketch17.MapMode = "FlatFace"
sketch17.AttachmentOffset = App.Placement(V(0, 0, -121.5), App.Rotation())
sketch17.addGeometry([
    Part.Circle(V(27.5, -107.2, 0), V(0, 0, 1), 1.4),
    Part.Circle(V(10, -107.2, 0), V(0, 0, 1), 1.4),
    Part.Circle(V(27.5, -6.9, 0), V(0, 0, 1), 1.4),
    Part.Circle(V(10, -6.5, 0), V(0, 0, 1), 1.4),
], False)
sketch17.addConstraint([
    Sketcher.Constraint("Equal", 0, 1),
    Sketcher.Constraint("Equal", 1, 2),
    Sketcher.Constraint("Equal", 2, 3),
    Sketcher.Constraint("Horizontal", 0, 3, 1, 3),
    Sketcher.Constraint("Vertical", 0, 3, 2, 3),
    Sketcher.Constraint("Vertical", 1, 3, 3, 3),
    Sketcher.Constraint("Diameter", 0, Q("2.7 mm")),
    Sketcher.Constraint("DistanceX", -1, 1, 1, 3, Q("10 mm")),
    Sketcher.Constraint("DistanceX", -1, 1, 0, 3, Q("27.5 mm")),
    Sketcher.Constraint("DistanceY", 0, 3, 2, 3, Q("100.3 mm")),
    Sketcher.Constraint("DistanceY", 2, 3, 3, 3, Q("0.42 mm")),
    Sketcher.Constraint("DistanceY", 0, 3, -1, 1, Q("107.175 mm")),
])
pocket10 = doc.addObject("PartDesign::Pocket", "Pocket009")
body.addObject(pocket10)
pocket10.Profile = sketch17
pocket10.Length = 6
pocket10.Reversed = True

# Sketch on XZ plane
sketch18 = doc.addObject("Sketcher::SketchObject", "Sketch017")
body.addObject(sketch18)
sketch18.AttachmentSupport = (doc.XZ_Plane, [""])
sketch18.MapMode = "FlatFace"
sketch18.AttachmentOffset = App.Placement(V(0, 0, -2), App.Rotation())
sketch18.addGeometry([
    Part.Circle(V(-20.1, -94.6, 0), V(0, 0, 1), 3.5),
    Part.Circle(V(-20.1, -94.6, 0), V(0, 0, 1), 1.4),
    Part.Circle(V(-87.1, -94.6, 0), V(0, 0, 1), 3.5),
    Part.Circle(V(-87.1, -94.6, 0), V(0, 0, 1), 1.4),
], False)
sketch18.addConstraint([
    Sketcher.Constraint("Coincident", 1, 3, 0, 3),
    Sketcher.Constraint("Coincident", 3, 3, 2, 3),
    Sketcher.Constraint("Equal", 0, 2),
    Sketcher.Constraint("Equal", 1, 3),
    Sketcher.Constraint("Horizontal", 1, 3, 2, 3),
    Sketcher.Constraint("Diameter", 0, Q("7 mm")),
    Sketcher.Constraint("Diameter", 1, Q("2.7 mm")),
    Sketcher.Constraint("DistanceX", 2, 3, 0, 3, Q("67 mm")),
    Sketcher.Constraint("DistanceX", 0, 3, -1, 1, Q("20.1 mm")),
    Sketcher.Constraint("DistanceY", 0, 3, -1, 1, Q("94.6 mm")),
])
pad8 = doc.addObject("PartDesign::Pad", "Pad007")
body.addObject(pad8)
pad8.Profile = sketch18
pad8.Length = 3
pad8.Reversed = True

# Sketch on XZ plane
sketch19 = doc.addObject("Sketcher::SketchObject", "Sketch018")
body.addObject(sketch19)
sketch19.AttachmentSupport = (doc.XZ_Plane, [""])
sketch19.MapMode = "FlatFace"
sketch19.AttachmentOffset = App.Placement(V(0, 0, -5), App.Rotation())
sketch19.addGeometry([
    Part.Circle(V(-87.1, -94.6, 0), V(0, 0, 1), 1.4),
    Part.Circle(V(-20.1, -94.6, 0), V(0, 0, 1), 1.4),
], False)
sketch19.addConstraint([
    Sketcher.Constraint("Equal", 0, 1),
    Sketcher.Constraint("Horizontal", 0, 3, 1, 3),
    Sketcher.Constraint("Diameter", 0, Q("2.7 mm")),
    Sketcher.Constraint("DistanceX", 0, 3, 1, 3, Q("67 mm")),
    Sketcher.Constraint("DistanceX", 0, 3, -1, 1, Q("87.1 mm")),
    Sketcher.Constraint("DistanceY", 0, 3, -1, 1, Q("94.6 mm")),
])
pocket11 = doc.addObject("PartDesign::Pocket", "Pocket010")
body.addObject(pocket11)
pocket11.Profile = sketch19
pocket11.Length = 4
pocket11.Reversed = True

doc.recompute()
